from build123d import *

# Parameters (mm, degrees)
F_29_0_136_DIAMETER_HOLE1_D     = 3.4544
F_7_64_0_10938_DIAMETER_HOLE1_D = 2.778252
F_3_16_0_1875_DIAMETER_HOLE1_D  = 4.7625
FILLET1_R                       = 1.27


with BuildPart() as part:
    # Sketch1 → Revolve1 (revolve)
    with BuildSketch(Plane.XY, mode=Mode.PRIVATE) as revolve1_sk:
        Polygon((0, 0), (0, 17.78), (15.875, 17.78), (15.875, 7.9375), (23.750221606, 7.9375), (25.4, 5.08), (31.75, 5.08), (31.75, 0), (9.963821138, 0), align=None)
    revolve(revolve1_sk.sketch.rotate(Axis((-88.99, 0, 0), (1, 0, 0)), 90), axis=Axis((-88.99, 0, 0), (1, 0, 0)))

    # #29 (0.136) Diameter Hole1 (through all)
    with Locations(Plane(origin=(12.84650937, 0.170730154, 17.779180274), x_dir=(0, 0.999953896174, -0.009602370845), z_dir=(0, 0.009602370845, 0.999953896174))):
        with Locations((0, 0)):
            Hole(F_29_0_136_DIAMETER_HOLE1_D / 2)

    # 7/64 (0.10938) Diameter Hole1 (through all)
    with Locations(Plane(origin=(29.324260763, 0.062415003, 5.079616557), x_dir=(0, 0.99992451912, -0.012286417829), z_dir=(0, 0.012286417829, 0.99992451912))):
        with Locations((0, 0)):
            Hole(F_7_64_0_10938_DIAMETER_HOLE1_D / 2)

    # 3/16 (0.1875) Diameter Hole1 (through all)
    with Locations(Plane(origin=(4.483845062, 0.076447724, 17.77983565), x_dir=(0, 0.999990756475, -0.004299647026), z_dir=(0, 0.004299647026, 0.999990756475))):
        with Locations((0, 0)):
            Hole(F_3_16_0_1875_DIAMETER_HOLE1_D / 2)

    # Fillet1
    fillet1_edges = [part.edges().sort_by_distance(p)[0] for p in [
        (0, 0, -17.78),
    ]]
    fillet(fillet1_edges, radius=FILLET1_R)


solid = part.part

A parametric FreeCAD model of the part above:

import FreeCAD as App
import Part
import Sketcher
Q = App.Units.Quantity


def edges_at(feature, points):
    """Names of the edges that pass closest to the given points."""
    edges = feature.Shape.Edges
    near = lambda p: min(range(len(edges)), key=lambda i: edges[i].distToShape(Part.Vertex(*p))[0])
    return sorted({f"Edge{near(p) + 1}" for p in points})


def add_polygon(sketch, points):
    """Adds a closed chain of lines whose ends are joined by coincident constraints."""
    first, n = sketch.GeometryCount, len(points)
    for a, b in zip(points, points[1:] + points[:1]):
        sketch.addGeometry(Part.LineSegment(App.Vector(*a, 0), App.Vector(*b, 0)), False)
    for i in range(n):
        sketch.addConstraint(Sketcher.Constraint("Coincident", first + i, 2, first + (i + 1) % n, 1))

doc = App.newDocument("Part")
params = doc.addObject("Spreadsheet::Sheet", "Params")
for row, (alias, value) in enumerate([
    ("sketch1_height", "0.7 in"),
    ("sketch1_height2", "0.2 in"),
    ("sketch1_width", "1.25 in"),
    ("sketch1_width2", "0.625 in"),
    ("revolution_angle", "360 deg"),
    ("sketch2_diameter", "0.136 in"),
    ("hole_diameter", "0.136 in"),
    ("hole2_diameter", "2.778252 mm"),
    ("sketch4_diameter", "0.1875 in"),
    ("hole3_diameter", "0.1875 in"),
    ("fillet_radius", "0.05 in"),
], start=1):
    params.set(f"A{row}", alias)
    params.set(f"B{row}", "=" + value)
    params.setAlias(f"B{row}", alias)

body = doc.addObject("PartDesign::Body", "Body")

# Sketch on XY plane
sketch1 = doc.addObject("Sketcher::SketchObject", "Sketch")
body.addObject(sketch1)
sketch1.AttachmentSupport = (doc.XY_Plane, [""])
sketch1.MapMode = "FlatFace"
add_polygon(sketch1, [(0, 17.8), (0, 0), (31.8, 0), (31.8, 5.1), (25.4, 5.1), (23.8, 7.9), (15.9, 7.9), (15.9, 17.8)])  # lines 0-7
sketch1.addConstraint(Sketcher.Constraint("Vertical", 0))
sketch1.addConstraint(Sketcher.Constraint("Horizontal", 1))
sketch1.addConstraint(Sketcher.Constraint("Vertical", 2))
sketch1.addConstraint(Sketcher.Constraint("Horizontal", 3))
sketch1.addConstraint(Sketcher.Constraint("Horizontal", 5))
sketch1.addConstraint(Sketcher.Constraint("Vertical", 6))
sketch1.addConstraint(Sketcher.Constraint("Horizontal", 7))
sketch1.addConstraint(Sketcher.Constraint("Coincident", 0, 2, -1, 1))
sketch1.addConstraint(Sketcher.Constraint("DistanceY", 0, 2, 0, 1, Q("0.7 in")))
sketch1.addConstraint(Sketcher.Constraint("DistanceY", 2, 1, 2, 2, Q("0.2 in")))
sketch1.addConstraint(Sketcher.Constraint("DistanceX", -1, 1, 3, 2, Q("1 in")))
sketch1.addConstraint(Sketcher.Constraint("Angle", 4, Q("120 deg")))
sketch1.addConstraint(Sketcher.Constraint("DistanceX", 1, 1, 1, 2, Q("1.25 in")))
sketch1.addConstraint(Sketcher.Constraint("DistanceX", 7, 2, 7, 1, Q("0.625 in")))
sketch1.addConstraint(Sketcher.Constraint("DistanceY", 6, 1, 6, 2, Q("0.3875 in")))
sketch1.setExpression("Constraints[16]", "Params.sketch1_height")
sketch1.setExpression("Constraints[17]", "Params.sketch1_height2")
sketch1.setExpression("Constraints[20]", "Params.sketch1_width")
sketch1.setExpression("Constraints[21]", "Params.sketch1_width2")
revolution = doc.addObject("PartDesign::Revolution", "Revolution")
body.addObject(revolution)
revolution.Profile = sketch1
revolution.ReferenceAxis = (sketch1, ["H_Axis"])
revolution.setExpression("Angle", "Params.revolution_angle")

# Sketch on an angled plane
sketch2 = doc.addObject("Sketcher::SketchObject", "Sketch001")
body.addObject(sketch2)
sketch2.Placement = App.Placement(App.Vector(0, 0.17073, 17.77918), App.Rotation(App.Vector(0, 0.999953896, -0.009602371), App.Vector(-1, 0, 0), App.Vector(0, 0.009602371, 0.999953896), "ZXY"))
sketch2.addGeometry(Part.Circle(App.Vector(0, -12.8, 0), App.Vector(0, 0, 1), 1.7), False)
sketch2.addConstraint(Sketcher.Constraint("PointOnObject", 0, 3, -2))
sketch2.addConstraint(Sketcher.Constraint("Diameter", 0, Q("0.136 in")))
sketch2.addConstraint(Sketcher.Constraint("DistanceY", 0, 3, -1, 1, Q("12.846509 mm")))
sketch2.setExpression("Constraints[1]", "Params.sketch2_diameter")
doc.recompute()
hole = doc.addObject("PartDesign::Hole", "Hole")
body.addObject(hole)
hole.Profile = sketch2
hole.ThreadType = "None"
hole.setExpression("Diameter", "Params.hole_diameter")
hole.DepthType = "ThroughAll"

# Sketch on an angled plane
sketch3 = doc.addObject("Sketcher::SketchObject", "Sketch002")
body.addObject(sketch3)
sketch3.Placement = App.Placement(App.Vector(0, 0.062415, 5.079617), App.Rotation(App.Vector(0, 0.999924519, -0.012286418), App.Vector(-1, 0, 0), App.Vector(0, 0.012286418, 0.999924519), "ZXY"))
sketch3.addGeometry(Part.Circle(App.Vector(0, -29.3, 0), App.Vector(0, 0, 1), 1.4), False)
sketch3.addConstraint(Sketcher.Constraint("PointOnObject", 0, 3, -2))
sketch3.addConstraint(Sketcher.Constraint("Diameter", 0, Q("2.778252 mm")))
sketch3.addConstraint(Sketcher.Constraint("DistanceY", 0, 3, -1, 1, Q("29.324261 mm")))
doc.recompute()
hole2 = doc.addObject("PartDesign::Hole", "Hole001")
body.addObject(hole2)
hole2.Profile = sketch3
hole2.ThreadType = "None"
hole2.setExpression("Diameter", "Params.hole2_diameter")
hole2.DepthType = "ThroughAll"

# Sketch on an angled plane
sketch4 = doc.addObject("Sketcher::SketchObject", "Sketch003")
body.addObject(sketch4)
sketch4.Placement = App.Placement(App.Vector(0, 0.076448, 17.779836), App.Rotation(App.Vector(0, 0.999990756, -0.004299647), App.Vector(-0.999999999, 0, 0), App.Vector(0, 0.004299647, 0.999990756), "ZXY"))
sketch4.addGeometry(Part.Circle(App.Vector(0, -4.5, 0), App.Vector(0, 0, 1), 2.4), False)
sketch4.addConstraint(Sketcher.Constraint("PointOnObject", 0, 3, -2))
sketch4.addConstraint(Sketcher.Constraint("Diameter", 0, Q("0.1875 in")))
sketch4.addConstraint(Sketcher.Constraint("DistanceY", 0, 3, -1, 1, Q("4.483845 mm")))
sketch4.setExpression("Constraints[1]", "Params.sketch4_diameter")
doc.recompute()
hole3 = doc.addObject("PartDesign::Hole", "Hole002")
body.addObject(hole3)
hole3.Profile = sketch4
hole3.ThreadType = "None"
hole3.setExpression("Diameter", "Params.hole3_diameter")
hole3.DepthType = "ThroughAll"
doc.recompute()

fillet = doc.addObject("PartDesign::Fillet", "Fillet")
body.addObject(fillet)
fillet.Base = (hole3, edges_at(hole3, [(0, 0, -17.78)]))
fillet.setExpression("Radius", "Params.fillet_radius")

doc.recompute()
